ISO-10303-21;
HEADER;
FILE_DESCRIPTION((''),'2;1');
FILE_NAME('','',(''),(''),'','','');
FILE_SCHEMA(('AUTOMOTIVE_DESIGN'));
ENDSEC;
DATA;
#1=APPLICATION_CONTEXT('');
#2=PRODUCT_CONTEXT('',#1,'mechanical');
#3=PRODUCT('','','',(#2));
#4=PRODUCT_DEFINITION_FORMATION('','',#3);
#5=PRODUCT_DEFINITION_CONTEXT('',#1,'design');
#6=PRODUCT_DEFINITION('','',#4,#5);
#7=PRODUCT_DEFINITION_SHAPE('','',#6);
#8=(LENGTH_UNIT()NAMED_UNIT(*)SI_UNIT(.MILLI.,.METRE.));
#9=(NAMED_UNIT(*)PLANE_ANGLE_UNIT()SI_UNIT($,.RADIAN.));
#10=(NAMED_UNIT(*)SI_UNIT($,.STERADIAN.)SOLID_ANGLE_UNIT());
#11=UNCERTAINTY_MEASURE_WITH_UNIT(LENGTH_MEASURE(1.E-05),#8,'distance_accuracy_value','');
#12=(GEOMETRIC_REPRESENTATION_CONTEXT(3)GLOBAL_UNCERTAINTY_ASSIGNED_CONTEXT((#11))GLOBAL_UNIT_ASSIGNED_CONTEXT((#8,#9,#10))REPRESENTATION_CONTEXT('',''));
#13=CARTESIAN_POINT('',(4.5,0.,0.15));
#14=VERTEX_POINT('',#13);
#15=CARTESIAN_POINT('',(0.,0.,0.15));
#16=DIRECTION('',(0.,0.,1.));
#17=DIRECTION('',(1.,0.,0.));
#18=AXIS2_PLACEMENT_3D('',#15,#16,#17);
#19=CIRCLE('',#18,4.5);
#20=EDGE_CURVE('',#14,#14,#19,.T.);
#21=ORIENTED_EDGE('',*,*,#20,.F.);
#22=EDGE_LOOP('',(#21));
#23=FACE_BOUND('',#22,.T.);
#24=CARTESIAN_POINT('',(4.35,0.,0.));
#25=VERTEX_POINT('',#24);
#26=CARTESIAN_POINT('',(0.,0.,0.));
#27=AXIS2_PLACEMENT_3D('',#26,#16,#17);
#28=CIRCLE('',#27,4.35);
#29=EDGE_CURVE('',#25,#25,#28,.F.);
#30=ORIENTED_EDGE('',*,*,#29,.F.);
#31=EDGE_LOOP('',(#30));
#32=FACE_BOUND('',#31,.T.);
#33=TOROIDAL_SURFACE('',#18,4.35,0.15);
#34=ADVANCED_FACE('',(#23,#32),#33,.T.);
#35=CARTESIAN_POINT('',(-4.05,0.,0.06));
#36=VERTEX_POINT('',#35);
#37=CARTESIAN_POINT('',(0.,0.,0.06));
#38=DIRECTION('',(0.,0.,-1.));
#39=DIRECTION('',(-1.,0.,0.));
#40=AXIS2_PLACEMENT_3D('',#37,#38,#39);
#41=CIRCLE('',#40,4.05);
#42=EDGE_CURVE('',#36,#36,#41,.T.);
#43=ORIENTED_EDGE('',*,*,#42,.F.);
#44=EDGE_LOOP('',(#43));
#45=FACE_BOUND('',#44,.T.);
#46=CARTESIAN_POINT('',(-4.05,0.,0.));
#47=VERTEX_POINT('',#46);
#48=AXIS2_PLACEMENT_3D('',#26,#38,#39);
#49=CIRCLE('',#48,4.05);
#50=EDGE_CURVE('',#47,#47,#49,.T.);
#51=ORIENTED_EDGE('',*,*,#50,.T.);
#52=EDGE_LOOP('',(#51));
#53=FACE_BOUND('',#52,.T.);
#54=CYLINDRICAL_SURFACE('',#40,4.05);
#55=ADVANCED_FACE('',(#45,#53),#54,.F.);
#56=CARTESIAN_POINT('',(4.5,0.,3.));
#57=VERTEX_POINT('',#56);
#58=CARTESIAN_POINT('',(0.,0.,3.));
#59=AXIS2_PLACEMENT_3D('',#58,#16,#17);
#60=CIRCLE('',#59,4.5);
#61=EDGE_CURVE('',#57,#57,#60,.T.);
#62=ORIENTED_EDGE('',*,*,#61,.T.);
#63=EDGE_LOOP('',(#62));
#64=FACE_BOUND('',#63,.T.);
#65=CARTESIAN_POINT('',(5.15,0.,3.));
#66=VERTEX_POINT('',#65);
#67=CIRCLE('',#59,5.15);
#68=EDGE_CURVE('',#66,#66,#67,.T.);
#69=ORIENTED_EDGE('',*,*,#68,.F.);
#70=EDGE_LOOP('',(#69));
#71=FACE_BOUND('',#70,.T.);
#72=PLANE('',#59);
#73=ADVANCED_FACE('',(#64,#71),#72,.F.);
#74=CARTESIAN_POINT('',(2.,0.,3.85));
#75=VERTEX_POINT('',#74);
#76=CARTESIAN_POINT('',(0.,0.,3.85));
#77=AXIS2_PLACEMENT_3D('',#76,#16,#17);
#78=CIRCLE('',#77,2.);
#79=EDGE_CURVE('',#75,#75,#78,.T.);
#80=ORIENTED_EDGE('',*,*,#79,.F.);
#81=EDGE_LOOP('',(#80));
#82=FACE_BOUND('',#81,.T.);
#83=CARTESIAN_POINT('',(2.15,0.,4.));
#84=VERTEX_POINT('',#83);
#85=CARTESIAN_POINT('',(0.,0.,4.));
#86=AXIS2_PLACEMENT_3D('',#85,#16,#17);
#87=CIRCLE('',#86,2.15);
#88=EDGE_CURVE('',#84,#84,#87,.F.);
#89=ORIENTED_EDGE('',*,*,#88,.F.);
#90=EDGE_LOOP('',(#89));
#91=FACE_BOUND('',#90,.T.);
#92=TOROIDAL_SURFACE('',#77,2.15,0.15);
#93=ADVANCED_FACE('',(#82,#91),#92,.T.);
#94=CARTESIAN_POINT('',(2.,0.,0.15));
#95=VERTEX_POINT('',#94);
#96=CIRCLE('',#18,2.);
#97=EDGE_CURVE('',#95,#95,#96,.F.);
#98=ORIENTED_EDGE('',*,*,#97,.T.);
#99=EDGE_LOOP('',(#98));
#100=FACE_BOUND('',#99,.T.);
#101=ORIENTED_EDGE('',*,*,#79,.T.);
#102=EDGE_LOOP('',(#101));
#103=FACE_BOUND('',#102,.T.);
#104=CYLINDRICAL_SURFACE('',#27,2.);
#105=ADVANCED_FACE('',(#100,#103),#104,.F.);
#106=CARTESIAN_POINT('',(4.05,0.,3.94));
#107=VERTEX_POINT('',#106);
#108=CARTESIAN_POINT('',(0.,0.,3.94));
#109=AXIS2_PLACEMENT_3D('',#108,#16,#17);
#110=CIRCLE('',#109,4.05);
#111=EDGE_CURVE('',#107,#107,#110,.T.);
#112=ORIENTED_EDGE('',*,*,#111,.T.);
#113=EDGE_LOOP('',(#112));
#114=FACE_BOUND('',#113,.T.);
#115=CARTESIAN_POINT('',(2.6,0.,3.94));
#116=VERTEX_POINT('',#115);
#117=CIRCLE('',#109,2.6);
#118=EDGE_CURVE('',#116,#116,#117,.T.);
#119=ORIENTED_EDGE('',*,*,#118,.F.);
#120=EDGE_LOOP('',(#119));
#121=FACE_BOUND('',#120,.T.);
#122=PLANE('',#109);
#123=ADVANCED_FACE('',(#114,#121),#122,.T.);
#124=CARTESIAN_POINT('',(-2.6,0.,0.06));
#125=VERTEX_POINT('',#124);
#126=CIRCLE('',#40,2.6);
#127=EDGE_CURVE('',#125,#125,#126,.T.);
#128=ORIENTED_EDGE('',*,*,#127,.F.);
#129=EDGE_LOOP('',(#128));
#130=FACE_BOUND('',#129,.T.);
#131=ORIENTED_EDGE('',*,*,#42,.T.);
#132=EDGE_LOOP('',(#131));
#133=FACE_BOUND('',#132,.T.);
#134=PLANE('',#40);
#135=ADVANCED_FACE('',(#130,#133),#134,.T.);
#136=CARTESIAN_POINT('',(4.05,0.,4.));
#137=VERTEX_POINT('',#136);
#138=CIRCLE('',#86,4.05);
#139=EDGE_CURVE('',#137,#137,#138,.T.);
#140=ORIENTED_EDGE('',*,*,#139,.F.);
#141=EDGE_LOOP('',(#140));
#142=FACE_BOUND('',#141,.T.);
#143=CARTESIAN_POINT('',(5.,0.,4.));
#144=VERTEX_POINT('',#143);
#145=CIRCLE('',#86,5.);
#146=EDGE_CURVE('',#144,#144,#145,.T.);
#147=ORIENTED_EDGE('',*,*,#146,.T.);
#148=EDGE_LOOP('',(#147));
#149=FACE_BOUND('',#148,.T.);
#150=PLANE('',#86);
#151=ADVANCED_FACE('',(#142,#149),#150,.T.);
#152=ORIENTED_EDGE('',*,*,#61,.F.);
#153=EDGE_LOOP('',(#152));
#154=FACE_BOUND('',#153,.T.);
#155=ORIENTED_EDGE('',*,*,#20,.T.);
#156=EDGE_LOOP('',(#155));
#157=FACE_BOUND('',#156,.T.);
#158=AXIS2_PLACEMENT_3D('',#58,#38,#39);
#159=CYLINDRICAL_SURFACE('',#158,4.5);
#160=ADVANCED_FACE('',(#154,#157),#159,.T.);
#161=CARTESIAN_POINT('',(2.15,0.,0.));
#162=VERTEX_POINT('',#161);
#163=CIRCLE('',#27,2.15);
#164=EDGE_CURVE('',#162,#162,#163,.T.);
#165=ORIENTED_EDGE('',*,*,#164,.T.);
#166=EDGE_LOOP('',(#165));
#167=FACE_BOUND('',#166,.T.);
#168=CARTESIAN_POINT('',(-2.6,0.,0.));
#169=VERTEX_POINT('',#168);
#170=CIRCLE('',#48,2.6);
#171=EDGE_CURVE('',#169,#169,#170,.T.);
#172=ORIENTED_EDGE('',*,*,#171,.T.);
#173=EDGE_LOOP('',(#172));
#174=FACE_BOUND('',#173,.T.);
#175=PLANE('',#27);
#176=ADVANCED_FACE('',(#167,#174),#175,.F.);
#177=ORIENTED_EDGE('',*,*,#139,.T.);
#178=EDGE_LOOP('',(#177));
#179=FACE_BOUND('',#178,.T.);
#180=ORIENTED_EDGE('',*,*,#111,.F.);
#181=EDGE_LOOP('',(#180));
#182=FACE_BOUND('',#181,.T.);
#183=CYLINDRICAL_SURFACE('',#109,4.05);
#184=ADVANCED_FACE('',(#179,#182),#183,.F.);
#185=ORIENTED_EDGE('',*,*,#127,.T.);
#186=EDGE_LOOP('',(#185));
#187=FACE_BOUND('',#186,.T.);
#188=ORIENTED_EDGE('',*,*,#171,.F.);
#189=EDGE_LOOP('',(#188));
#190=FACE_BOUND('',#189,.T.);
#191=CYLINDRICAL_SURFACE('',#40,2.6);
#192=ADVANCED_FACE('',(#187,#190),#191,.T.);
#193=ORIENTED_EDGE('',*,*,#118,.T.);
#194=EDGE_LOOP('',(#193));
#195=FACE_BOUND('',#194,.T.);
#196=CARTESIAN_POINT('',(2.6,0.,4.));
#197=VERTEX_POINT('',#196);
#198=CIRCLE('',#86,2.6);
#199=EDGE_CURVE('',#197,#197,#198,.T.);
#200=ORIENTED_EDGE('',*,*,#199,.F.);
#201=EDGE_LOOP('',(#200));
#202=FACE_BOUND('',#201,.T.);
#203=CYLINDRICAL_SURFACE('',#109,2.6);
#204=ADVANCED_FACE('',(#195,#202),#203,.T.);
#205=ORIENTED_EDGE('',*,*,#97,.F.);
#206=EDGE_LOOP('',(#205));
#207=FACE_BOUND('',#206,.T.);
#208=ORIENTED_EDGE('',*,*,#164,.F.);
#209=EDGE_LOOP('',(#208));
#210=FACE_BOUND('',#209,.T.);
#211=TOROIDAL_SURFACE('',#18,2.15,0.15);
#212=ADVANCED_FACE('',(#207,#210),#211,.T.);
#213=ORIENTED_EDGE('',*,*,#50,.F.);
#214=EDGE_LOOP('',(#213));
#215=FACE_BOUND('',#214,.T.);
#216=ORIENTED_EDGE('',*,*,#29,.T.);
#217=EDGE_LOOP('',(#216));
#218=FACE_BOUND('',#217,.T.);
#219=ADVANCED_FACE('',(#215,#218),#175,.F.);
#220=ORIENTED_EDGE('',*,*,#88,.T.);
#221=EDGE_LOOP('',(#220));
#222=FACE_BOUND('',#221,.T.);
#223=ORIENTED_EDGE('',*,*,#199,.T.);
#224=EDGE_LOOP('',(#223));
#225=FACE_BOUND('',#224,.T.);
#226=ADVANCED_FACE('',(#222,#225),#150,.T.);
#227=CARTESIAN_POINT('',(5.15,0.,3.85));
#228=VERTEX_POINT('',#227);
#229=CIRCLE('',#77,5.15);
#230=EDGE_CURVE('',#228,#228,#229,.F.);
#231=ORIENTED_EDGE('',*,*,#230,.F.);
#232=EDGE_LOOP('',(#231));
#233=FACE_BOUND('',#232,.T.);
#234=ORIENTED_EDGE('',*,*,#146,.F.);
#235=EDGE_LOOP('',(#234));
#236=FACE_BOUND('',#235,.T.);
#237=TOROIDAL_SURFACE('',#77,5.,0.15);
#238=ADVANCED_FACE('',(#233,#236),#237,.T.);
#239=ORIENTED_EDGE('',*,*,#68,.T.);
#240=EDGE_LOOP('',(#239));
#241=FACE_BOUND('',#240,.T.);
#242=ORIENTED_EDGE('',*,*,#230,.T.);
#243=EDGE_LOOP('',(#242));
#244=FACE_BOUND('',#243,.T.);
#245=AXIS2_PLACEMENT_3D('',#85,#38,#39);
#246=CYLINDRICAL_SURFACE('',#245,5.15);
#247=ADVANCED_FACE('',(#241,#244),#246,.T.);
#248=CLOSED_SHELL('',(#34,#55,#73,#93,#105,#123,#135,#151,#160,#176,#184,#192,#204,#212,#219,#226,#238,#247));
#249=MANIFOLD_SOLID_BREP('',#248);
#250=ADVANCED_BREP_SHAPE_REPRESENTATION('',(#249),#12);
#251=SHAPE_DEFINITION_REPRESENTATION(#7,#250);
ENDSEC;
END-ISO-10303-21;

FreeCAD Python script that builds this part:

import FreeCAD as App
import Part
import Sketcher
Q = App.Units.Quantity


def edges_at(feature, points):
    """Names of the edges that pass closest to the given points."""
    edges = feature.Shape.Edges
    near = lambda p: min(range(len(edges)), key=lambda i: edges[i].distToShape(Part.Vertex(*p))[0])
    return sorted({f"Edge{near(p) + 1}" for p in points})

doc = App.newDocument("Part")
body = doc.addObject("PartDesign::Body", "Body")

# Sketch on XY plane
sketch1 = body.newObject("Sketcher::SketchObject", "Sketch")
sketch1.AttachmentSupport = (doc.getObject("XY_Plane"), [""])
sketch1.MapMode = "FlatFace"
sketch1.addGeometry(Part.Circle(App.Vector(0, 0, 0), App.Vector(0, 0, 1), 4.5), False)
sketch1.addConstraint([
    Sketcher.Constraint("Coincident", 0, 3, -1, 1),
    Sketcher.Constraint("Diameter", 0, Q("9 mm")),
])
pad1 = body.newObject("PartDesign::Pad", "Pad")
pad1.Profile = sketch1
pad1.Length = 3

# Sketch on XY plane
sketch2 = body.newObject("Sketcher::SketchObject", "Sketch001")
sketch2.AttachmentSupport = (doc.getObject("XY_Plane"), [""])
sketch2.MapMode = "FlatFace"
sketch2.AttachmentOffset = App.Placement(App.Vector(0, 0, 3), App.Rotation())
sketch2.addGeometry(Part.Circle(App.Vector(0, 0, 0), App.Vector(0, 0, 1), 5), False)
sketch2.addConstraint([
    Sketcher.Constraint("Coincident", 0, 3, -1, 1),
    Sketcher.Constraint("Diameter", 0, Q("10.3 mm")),
])
pad2 = body.newObject("PartDesign::Pad", "Pad001")
pad2.Profile = sketch2
pad2.Length = 1

# Sketch on XY plane
sketch3 = body.newObject("Sketcher::SketchObject", "Sketch002")
sketch3.AttachmentSupport = (doc.getObject("XY_Plane"), [""])
sketch3.MapMode = "FlatFace"
sketch3.AttachmentOffset = App.Placement(App.Vector(0, 0, 4), App.Rotation())
sketch3.addGeometry(Part.Circle(App.Vector(0, 0, 0), App.Vector(0, 0, 1), 2), False)
sketch3.addConstraint([
    Sketcher.Constraint("Coincident", 0, 3, -1, 1),
    Sketcher.Constraint("Diameter", 0, Q("4 mm")),
])
pocket1 = body.newObject("PartDesign::Pocket", "Pocket")
pocket1.Profile = sketch3
pocket1.Type = "ThroughAll"

# Sketch on XY plane
sketch4 = body.newObject("Sketcher::SketchObject", "Sketch003")
sketch4.AttachmentSupport = (doc.getObject("XY_Plane"), [""])
sketch4.MapMode = "FlatFace"
sketch4.AttachmentOffset = App.Placement(App.Vector(0, 0, 4), App.Rotation())
sketch4.addGeometry([
    Part.Circle(App.Vector(0, 0, 0), App.Vector(0, 0, 1), 4),
    Part.Circle(App.Vector(0, 0, 0), App.Vector(0, 0, 1), 2.6),
], False)
sketch4.addConstraint([
    Sketcher.Constraint("Coincident", 0, 3, -1, 1),
    Sketcher.Constraint("Coincident", 1, 3, -1, 1),
    Sketcher.Constraint("Diameter", 0, Q("8.1 mm")),
    Sketcher.Constraint("Diameter", 1, Q("5.2 mm")),
])
pocket2 = body.newObject("PartDesign::Pocket", "Pocket001")
pocket2.Profile = sketch4
pocket2.Length = 0.06

# Sketch on XY plane
sketch5 = body.newObject("Sketcher::SketchObject", "Sketch004")
sketch5.AttachmentSupport = (doc.getObject("XY_Plane"), [""])
sketch5.MapMode = "FlatFace"
sketch5.AttachmentOffset = App.Placement(App.Vector(0, 0, 0.06), App.Rotation())
sketch5.addGeometry([
    Part.Circle(App.Vector(0, 0, 0), App.Vector(0, 0, 1), 4),
    Part.Circle(App.Vector(0, 0, 0), App.Vector(0, 0, 1), 2.6),
], False)
sketch5.addConstraint([
    Sketcher.Constraint("Coincident", 0, 3, -1, 1),
    Sketcher.Constraint("Coincident", 1, 3, -1, 1),
    Sketcher.Constraint("Diameter", 0, Q("8.1 mm")),
    Sketcher.Constraint("Diameter", 1, Q("5.2 mm")),
])
pocket3 = body.newObject("PartDesign::Pocket", "Pocket002")
pocket3.Profile = sketch5
pocket3.Length = 0.06
doc.recompute()

fillet = body.newObject("PartDesign::Fillet", "Fillet")
fillet.Base = (pocket3, edges_at(pocket3, [
    (-2, 0, 0),
    (-2, 0, 4),
    (-4.5, 0, 0),
    (-5.15, 0, 4),
]))
fillet.Radius = 0.15

doc.recompute()
